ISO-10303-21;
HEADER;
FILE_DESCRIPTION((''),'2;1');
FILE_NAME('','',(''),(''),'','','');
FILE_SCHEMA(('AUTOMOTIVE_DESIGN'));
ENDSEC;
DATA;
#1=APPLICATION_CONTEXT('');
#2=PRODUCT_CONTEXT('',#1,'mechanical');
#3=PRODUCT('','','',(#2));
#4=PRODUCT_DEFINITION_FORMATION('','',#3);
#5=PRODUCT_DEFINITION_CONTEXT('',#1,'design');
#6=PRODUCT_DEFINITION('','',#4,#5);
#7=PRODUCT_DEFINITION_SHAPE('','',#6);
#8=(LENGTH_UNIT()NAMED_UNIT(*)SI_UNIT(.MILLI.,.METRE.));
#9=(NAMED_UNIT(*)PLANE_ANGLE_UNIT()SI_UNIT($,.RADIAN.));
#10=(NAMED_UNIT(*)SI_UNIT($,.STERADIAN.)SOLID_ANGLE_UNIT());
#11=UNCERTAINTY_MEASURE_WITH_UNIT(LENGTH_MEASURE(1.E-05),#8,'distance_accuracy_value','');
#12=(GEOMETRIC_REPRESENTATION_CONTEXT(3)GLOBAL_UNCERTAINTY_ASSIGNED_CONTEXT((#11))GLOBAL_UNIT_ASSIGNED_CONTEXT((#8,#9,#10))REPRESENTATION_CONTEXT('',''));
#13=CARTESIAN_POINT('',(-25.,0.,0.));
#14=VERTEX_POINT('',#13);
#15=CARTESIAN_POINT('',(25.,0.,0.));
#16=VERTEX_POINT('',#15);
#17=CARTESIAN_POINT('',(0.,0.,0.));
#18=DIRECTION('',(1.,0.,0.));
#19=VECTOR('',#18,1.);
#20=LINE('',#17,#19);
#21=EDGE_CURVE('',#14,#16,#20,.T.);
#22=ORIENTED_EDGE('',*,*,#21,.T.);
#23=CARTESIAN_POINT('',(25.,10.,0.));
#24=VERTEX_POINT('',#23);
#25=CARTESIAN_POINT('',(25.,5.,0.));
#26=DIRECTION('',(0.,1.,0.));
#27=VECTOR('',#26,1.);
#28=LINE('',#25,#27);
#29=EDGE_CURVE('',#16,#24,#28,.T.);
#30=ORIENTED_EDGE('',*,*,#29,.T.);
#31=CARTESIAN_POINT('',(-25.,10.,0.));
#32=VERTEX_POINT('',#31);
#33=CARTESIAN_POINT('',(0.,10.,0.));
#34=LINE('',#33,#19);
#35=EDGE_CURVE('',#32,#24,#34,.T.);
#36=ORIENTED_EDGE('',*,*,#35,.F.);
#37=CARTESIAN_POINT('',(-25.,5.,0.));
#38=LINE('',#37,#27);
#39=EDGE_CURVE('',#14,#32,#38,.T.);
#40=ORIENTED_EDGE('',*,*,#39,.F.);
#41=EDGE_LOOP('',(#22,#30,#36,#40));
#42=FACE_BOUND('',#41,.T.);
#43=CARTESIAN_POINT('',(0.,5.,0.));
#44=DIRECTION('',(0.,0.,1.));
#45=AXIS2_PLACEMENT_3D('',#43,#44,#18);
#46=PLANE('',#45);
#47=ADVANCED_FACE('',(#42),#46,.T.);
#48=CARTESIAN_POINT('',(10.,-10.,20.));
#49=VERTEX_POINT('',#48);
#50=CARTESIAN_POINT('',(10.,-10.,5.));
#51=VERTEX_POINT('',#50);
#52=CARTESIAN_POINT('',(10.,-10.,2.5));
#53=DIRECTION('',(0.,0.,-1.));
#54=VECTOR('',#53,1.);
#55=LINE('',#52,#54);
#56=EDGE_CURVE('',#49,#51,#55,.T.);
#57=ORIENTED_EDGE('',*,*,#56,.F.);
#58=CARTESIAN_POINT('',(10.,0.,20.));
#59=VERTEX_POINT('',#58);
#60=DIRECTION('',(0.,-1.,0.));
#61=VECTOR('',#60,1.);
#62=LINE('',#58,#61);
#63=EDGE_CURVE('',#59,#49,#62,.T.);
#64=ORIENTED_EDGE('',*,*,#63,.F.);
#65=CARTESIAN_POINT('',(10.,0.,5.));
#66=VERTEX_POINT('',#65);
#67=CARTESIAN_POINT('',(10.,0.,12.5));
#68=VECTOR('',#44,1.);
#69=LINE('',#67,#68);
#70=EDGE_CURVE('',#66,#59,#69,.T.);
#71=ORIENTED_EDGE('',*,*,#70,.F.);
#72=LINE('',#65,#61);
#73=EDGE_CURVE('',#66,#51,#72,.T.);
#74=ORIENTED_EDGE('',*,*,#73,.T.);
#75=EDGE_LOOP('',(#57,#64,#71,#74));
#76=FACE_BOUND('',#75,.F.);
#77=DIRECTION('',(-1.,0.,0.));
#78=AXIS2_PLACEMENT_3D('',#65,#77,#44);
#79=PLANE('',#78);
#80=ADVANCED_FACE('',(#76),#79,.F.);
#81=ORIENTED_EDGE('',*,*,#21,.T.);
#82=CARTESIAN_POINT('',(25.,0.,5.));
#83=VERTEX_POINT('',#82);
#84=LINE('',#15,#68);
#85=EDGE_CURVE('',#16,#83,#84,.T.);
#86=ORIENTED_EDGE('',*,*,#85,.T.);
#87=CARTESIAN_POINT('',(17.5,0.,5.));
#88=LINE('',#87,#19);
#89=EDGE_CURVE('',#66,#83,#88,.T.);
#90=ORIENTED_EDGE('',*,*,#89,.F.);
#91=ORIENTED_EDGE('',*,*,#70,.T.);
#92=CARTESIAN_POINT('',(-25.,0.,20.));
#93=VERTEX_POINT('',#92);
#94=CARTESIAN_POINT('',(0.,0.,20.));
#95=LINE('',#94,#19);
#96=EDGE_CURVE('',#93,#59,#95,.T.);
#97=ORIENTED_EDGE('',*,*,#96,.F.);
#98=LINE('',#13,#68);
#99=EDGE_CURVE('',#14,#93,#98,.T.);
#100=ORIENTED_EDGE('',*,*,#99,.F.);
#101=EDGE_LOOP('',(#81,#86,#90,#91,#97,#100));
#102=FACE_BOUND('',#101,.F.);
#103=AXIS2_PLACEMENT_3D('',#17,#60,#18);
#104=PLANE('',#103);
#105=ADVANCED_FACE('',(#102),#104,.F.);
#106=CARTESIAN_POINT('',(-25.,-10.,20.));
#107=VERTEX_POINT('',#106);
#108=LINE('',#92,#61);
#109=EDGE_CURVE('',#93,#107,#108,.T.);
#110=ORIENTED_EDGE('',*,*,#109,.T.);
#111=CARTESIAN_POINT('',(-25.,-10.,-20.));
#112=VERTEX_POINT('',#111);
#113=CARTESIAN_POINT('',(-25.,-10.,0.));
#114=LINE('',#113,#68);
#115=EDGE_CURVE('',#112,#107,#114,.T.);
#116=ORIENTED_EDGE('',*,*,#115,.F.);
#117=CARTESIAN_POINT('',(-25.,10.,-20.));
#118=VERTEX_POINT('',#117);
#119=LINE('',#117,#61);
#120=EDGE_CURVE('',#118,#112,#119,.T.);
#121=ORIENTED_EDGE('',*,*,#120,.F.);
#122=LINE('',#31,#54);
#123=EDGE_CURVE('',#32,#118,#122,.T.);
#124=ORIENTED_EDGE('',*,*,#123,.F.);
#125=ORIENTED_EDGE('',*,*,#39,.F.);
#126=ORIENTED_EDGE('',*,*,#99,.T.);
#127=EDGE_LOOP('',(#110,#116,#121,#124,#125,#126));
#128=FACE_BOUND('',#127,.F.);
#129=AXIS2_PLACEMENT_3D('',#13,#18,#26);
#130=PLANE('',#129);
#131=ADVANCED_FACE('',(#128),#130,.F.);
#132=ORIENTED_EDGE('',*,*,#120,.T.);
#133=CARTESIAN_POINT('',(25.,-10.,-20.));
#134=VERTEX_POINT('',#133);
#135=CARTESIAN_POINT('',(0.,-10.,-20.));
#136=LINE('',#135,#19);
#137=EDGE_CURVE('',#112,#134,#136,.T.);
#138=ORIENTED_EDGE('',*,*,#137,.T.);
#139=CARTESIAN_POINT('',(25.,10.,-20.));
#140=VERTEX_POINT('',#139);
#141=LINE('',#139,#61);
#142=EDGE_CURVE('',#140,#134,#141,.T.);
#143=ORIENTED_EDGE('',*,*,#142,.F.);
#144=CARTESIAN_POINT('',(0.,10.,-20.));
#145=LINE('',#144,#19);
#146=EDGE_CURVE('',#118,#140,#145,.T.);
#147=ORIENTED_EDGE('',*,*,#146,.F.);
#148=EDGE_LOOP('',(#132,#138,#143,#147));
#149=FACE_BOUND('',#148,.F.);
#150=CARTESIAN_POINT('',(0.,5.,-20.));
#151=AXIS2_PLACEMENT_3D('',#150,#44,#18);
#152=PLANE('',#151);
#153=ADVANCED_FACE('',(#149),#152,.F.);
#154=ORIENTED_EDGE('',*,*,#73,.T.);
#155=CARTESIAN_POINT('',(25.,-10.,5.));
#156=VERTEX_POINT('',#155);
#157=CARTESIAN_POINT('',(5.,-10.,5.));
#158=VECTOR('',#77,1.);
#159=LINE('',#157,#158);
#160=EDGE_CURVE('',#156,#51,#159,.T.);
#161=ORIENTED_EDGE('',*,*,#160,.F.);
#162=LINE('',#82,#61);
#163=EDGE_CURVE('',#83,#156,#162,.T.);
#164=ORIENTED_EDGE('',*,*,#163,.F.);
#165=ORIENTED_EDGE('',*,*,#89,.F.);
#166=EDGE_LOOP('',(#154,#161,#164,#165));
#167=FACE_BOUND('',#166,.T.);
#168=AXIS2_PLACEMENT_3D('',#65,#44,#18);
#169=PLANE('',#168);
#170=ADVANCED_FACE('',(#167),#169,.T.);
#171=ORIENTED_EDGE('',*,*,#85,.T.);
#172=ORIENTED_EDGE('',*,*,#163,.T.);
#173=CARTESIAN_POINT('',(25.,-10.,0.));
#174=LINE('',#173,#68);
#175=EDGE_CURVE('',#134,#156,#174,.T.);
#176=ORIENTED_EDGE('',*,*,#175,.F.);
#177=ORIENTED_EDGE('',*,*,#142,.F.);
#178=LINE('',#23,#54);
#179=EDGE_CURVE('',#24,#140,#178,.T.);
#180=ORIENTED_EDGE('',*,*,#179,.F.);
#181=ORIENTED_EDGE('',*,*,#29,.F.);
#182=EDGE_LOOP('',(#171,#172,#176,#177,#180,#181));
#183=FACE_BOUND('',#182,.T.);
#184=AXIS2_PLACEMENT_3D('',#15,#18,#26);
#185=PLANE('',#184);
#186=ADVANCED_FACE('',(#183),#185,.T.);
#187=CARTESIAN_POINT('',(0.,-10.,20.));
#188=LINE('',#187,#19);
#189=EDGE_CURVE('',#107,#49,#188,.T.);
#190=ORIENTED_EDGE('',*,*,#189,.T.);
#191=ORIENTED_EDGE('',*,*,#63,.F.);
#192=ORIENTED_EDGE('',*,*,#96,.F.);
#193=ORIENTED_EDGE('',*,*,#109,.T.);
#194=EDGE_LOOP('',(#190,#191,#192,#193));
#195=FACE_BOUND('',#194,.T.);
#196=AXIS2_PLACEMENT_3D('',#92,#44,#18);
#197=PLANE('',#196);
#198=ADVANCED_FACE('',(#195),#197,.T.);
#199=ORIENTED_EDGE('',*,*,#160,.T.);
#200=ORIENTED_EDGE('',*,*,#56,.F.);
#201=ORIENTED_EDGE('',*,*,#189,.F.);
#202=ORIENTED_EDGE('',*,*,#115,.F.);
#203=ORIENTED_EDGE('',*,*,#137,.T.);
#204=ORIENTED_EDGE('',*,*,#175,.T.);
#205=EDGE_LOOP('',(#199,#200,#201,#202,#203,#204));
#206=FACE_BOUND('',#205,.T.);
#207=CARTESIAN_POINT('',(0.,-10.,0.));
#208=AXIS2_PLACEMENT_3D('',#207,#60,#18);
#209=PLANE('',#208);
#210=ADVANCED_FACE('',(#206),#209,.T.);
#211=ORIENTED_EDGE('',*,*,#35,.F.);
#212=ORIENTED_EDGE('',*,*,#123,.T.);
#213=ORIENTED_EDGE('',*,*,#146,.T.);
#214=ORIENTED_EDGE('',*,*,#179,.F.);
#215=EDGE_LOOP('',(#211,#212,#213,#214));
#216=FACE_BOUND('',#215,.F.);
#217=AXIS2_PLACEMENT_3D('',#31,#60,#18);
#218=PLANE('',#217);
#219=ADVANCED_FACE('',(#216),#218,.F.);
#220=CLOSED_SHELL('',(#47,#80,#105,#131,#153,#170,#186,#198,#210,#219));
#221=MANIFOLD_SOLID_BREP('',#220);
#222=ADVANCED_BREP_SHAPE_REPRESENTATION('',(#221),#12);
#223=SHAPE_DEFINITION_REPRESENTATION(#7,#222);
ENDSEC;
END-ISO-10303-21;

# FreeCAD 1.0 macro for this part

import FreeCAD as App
import Part
import Sketcher

V = App.Vector
Q = App.Units.Quantity


def add_polygon(sketch, points):
    """Adds a closed chain of lines whose ends are joined by coincident constraints."""
    first, n = sketch.GeometryCount, len(points)
    for a, b in zip(points, points[1:] + points[:1]):
        sketch.addGeometry(Part.LineSegment(App.Vector(*a, 0), App.Vector(*b, 0)), False)
    for i in range(n):
        sketch.addConstraint(Sketcher.Constraint("Coincident", first + i, 2, first + (i + 1) % n, 1))

doc = App.newDocument("Part")
body = doc.addObject("PartDesign::Body", "Body")

# Sketch on XZ plane
sketch1 = body.newObject("Sketcher::SketchObject", "Sketch")
sketch1.AttachmentSupport = (doc.getObject("XZ_Plane"), [""])
sketch1.MapMode = "FlatFace"
add_polygon(sketch1, [(-25, 20), (-25, -20), (25, -20), (25, 20)])  # lines 0-3
sketch1.addConstraint([
    Sketcher.Constraint("Vertical", 0),
    Sketcher.Constraint("Horizontal", 1),
    Sketcher.Constraint("Vertical", 2),
    Sketcher.Constraint("Horizontal", 3),
    Sketcher.Constraint("Symmetric", 0, 2, 2, 2, -1, 1),
    Sketcher.Constraint("DistanceX", 1, 1, 1, 2, Q("50 mm")),
    Sketcher.Constraint("DistanceY", 0, 2, 0, 1, Q("40 mm")),
])
pad1 = body.newObject("PartDesign::Pad", "Pad")
pad1.Profile = sketch1
pad1.Length = 10

# Sketch on XZ plane
sketch2 = body.newObject("Sketcher::SketchObject", "Sketch001")
sketch2.AttachmentSupport = (doc.getObject("XZ_Plane"), [""])
sketch2.MapMode = "FlatFace"
add_polygon(sketch2, [(10, 20), (10, 5), (25, 5), (25, 20)])  # lines 0-3
sketch2.addConstraint([
    Sketcher.Constraint("Vertical", 0),
    Sketcher.Constraint("Horizontal", 1),
    Sketcher.Constraint("Vertical", 2),
    Sketcher.Constraint("Horizontal", 3),
    Sketcher.Constraint("Equal", 3, 0),
    Sketcher.Constraint("DistanceX", 1, 1, 1, 2, Q("15 mm")),
    Sketcher.Constraint("DistanceX", -1, 1, 0, 2, Q("10 mm")),
    Sketcher.Constraint("DistanceY", -1, 1, 0, 2, Q("5 mm")),
])
pocket1 = body.newObject("PartDesign::Pocket", "Pocket")
pocket1.Profile = sketch2
pocket1.Type = "ThroughAll"
pocket1.Reversed = True

# Sketch on XY plane
sketch3 = body.newObject("Sketcher::SketchObject", "Sketch002")
sketch3.AttachmentSupport = (doc.getObject("XY_Plane"), [""])
sketch3.MapMode = "FlatFace"
add_polygon(sketch3, [(-25, 10), (-25, 0), (25, 0), (25, 10)])  # lines 0-3
sketch3.addConstraint([
    Sketcher.Constraint("Vertical", 0),
    Sketcher.Constraint("Horizontal", 1),
    Sketcher.Constraint("Vertical", 2),
    Sketcher.Constraint("Horizontal", 3),
    Sketcher.Constraint("Symmetric", 0, 2, 1, 2, -1, 1),
    Sketcher.Constraint("DistanceX", 1, 1, 1, 2, Q("50 mm")),
    Sketcher.Constraint("DistanceY", 0, 2, 0, 1, Q("10 mm")),
])
pad2 = body.newObject("PartDesign::Pad", "Pad001")
pad2.Profile = sketch3
pad2.Length = 20
pad2.Reversed = True

doc.recompute()
